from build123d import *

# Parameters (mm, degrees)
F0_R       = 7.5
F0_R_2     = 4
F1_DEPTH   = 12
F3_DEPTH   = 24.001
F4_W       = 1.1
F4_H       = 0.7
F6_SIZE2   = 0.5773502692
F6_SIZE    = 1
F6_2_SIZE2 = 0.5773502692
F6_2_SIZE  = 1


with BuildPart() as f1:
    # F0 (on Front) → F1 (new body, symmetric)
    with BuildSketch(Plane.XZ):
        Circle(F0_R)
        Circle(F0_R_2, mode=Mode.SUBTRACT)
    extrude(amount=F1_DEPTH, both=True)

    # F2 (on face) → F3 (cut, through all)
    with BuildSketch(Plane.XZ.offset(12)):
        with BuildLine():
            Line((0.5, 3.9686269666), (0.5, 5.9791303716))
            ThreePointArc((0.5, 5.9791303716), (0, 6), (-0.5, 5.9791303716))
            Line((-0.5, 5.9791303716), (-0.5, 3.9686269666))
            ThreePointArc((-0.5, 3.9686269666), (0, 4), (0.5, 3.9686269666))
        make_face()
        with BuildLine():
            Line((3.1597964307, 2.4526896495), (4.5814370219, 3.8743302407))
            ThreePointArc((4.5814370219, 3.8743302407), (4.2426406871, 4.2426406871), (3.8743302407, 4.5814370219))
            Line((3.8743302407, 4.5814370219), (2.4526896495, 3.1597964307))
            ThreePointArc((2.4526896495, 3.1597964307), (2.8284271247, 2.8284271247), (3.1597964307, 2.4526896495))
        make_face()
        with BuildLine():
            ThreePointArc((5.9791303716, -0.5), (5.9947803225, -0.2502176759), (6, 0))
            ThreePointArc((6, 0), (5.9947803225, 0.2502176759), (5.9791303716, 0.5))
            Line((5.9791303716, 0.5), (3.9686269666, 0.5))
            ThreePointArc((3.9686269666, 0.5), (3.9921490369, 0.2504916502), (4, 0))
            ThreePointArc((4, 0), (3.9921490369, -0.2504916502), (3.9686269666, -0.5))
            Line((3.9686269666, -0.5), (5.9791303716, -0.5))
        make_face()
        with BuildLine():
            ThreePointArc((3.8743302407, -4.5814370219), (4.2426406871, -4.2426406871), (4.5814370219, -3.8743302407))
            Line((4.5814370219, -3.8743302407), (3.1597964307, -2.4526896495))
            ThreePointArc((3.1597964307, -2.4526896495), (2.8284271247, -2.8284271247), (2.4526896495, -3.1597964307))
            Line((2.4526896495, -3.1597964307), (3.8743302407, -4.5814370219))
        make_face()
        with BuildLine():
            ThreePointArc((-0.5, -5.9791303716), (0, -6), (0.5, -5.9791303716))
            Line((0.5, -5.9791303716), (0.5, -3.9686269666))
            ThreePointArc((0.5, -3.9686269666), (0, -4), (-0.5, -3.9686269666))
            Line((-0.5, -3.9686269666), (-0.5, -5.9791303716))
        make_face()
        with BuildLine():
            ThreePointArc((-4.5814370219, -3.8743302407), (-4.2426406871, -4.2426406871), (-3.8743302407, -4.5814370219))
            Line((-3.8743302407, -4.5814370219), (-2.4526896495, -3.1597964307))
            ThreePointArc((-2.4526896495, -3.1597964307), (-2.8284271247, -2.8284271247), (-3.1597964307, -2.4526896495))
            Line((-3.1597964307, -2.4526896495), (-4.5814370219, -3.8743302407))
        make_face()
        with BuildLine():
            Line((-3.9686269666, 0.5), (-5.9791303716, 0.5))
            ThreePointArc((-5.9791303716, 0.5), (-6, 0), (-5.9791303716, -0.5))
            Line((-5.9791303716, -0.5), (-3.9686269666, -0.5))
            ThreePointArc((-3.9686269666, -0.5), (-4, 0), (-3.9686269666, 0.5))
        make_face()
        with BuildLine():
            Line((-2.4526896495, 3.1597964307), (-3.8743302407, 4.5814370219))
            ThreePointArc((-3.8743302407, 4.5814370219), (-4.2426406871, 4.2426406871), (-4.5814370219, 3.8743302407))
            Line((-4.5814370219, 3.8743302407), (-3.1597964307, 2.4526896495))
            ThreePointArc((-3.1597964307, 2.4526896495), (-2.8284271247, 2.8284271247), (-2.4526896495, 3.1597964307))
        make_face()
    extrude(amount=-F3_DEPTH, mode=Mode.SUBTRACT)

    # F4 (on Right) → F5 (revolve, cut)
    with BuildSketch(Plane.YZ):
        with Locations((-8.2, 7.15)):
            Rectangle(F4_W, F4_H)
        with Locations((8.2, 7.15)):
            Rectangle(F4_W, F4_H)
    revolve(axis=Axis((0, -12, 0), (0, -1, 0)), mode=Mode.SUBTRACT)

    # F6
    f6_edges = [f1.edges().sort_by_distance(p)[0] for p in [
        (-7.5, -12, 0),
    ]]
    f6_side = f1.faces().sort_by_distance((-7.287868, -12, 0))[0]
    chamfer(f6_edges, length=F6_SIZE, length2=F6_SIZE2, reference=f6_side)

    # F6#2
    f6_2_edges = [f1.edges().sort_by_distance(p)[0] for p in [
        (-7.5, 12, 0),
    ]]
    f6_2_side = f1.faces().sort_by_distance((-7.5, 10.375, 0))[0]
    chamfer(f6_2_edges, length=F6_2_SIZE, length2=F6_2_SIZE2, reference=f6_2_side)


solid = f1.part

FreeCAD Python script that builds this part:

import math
import FreeCAD as App
import Part
import Sketcher

V = App.Vector
Q = App.Units.Quantity


def edges_at(feature, points):
    """Names of the edges that pass closest to the given points."""
    edges = feature.Shape.Edges
    near = lambda p: min(range(len(edges)), key=lambda i: edges[i].distToShape(Part.Vertex(*p))[0])
    return sorted({f"Edge{near(p) + 1}" for p in points})


def add_polygon(sketch, points):
    """Adds a closed chain of lines whose ends are joined by coincident constraints."""
    first, n = sketch.GeometryCount, len(points)
    for a, b in zip(points, points[1:] + points[:1]):
        sketch.addGeometry(Part.LineSegment(App.Vector(*a, 0), App.Vector(*b, 0)), False)
    for i in range(n):
        sketch.addConstraint(Sketcher.Constraint("Coincident", first + i, 2, first + (i + 1) % n, 1))

doc = App.newDocument("Part")
body = doc.addObject("PartDesign::Body", "Body")

# Sketch on XZ plane
sketch1 = doc.addObject("Sketcher::SketchObject", "Sketch")
body.addObject(sketch1)
sketch1.AttachmentSupport = (doc.XZ_Plane, [""])
sketch1.MapMode = "FlatFace"
sketch1.addGeometry(Part.Circle(V(0, 0, 0), V(0, 0, 1), 7.5), False)
sketch1.addGeometry(Part.Circle(V(0, 0, 0), V(0, 0, 1), 4), False)
sketch1.addConstraint(Sketcher.Constraint("Coincident", 0, 3, -1, 1))
sketch1.addConstraint(Sketcher.Constraint("Coincident", 1, 3, -1, 1))
sketch1.addConstraint(Sketcher.Constraint("Diameter", 0, Q("15 mm")))
sketch1.addConstraint(Sketcher.Constraint("Diameter", 1, Q("8 mm")))
pad1 = doc.addObject("PartDesign::Pad", "Pad")
body.addObject(pad1)
pad1.Profile = sketch1
pad1.Length = 24
pad1.Midplane = True

# Sketch on XZ plane
sketch2 = doc.addObject("Sketcher::SketchObject", "Sketch001")
body.addObject(sketch2)
sketch2.AttachmentSupport = (doc.XZ_Plane, [""])
sketch2.MapMode = "FlatFace"
sketch2.AttachmentOffset = App.Placement(V(0, 0, 12), App.Rotation())
sketch2.addGeometry(Part.LineSegment(V(0.5, 4, 0), V(0.5, 6, 0)), False)
sketch2.addGeometry(Part.ArcOfCircle(Part.Circle(V(0, 0, 0), V(0, 0, 1), 6), math.radians(85.22), math.radians(94.78)), False)
sketch2.addGeometry(Part.LineSegment(V(-0.5, 6, 0), V(-0.5, 4, 0)), False)
sketch2.addGeometry(Part.ArcOfCircle(Part.Circle(V(0, 0, 0), V(0, 0, 1), 4), math.radians(82.82), math.radians(97.18)), False)
sketch2.addGeometry(Part.LineSegment(V(3.2, 2.5, 0), V(4.6, 3.9, 0)), False)
sketch2.addGeometry(Part.ArcOfCircle(Part.Circle(V(0, 0, 0), V(0, 0, 1), 6), math.radians(40.22), math.radians(49.78)), False)
sketch2.addGeometry(Part.LineSegment(V(3.9, 4.6, 0), V(2.5, 3.2, 0)), False)
sketch2.addGeometry(Part.ArcOfCircle(Part.Circle(V(0, 0, 0), V(0, 0, 1), 4), math.radians(37.82), math.radians(52.18)), False)
sketch2.addGeometry(Part.ArcOfCircle(Part.Circle(V(0, 0, 0), V(0, 0, 1), 6), math.radians(-4.78), math.radians(0)), False)
sketch2.addGeometry(Part.ArcOfCircle(Part.Circle(V(0, 0, 0), V(0, 0, 1), 6), math.radians(0), math.radians(4.78)), False)
sketch2.addGeometry(Part.LineSegment(V(6, 0.5, 0), V(4, 0.5, 0)), False)
sketch2.addGeometry(Part.ArcOfCircle(Part.Circle(V(0, 0, 0), V(0, 0, 1), 4), math.radians(0), math.radians(7.18)), False)
sketch2.addGeometry(Part.ArcOfCircle(Part.Circle(V(0, 0, 0), V(0, 0, 1), 4), math.radians(-7.18), math.radians(0)), False)
sketch2.addGeometry(Part.LineSegment(V(4, -0.5, 0), V(6, -0.5, 0)), False)
sketch2.addGeometry(Part.ArcOfCircle(Part.Circle(V(0, 0, 0), V(0, 0, 1), 6), math.radians(-49.78), math.radians(-40.22)), False)
sketch2.addGeometry(Part.LineSegment(V(4.6, -3.9, 0), V(3.2, -2.5, 0)), False)
sketch2.addGeometry(Part.ArcOfCircle(Part.Circle(V(0, 0, 0), V(0, 0, 1), 4), math.radians(-52.18), math.radians(-37.82)), False)
sketch2.addGeometry(Part.LineSegment(V(2.5, -3.2, 0), V(3.9, -4.6, 0)), False)
sketch2.addGeometry(Part.ArcOfCircle(Part.Circle(V(0, 0, 0), V(0, 0, 1), 6), math.radians(-94.78), math.radians(-85.22)), False)
sketch2.addGeometry(Part.LineSegment(V(0.5, -6, 0), V(0.5, -4, 0)), False)
sketch2.addGeometry(Part.ArcOfCircle(Part.Circle(V(0, 0, 0), V(0, 0, 1), 4), math.radians(-97.18), math.radians(-82.82)), False)
sketch2.addGeometry(Part.LineSegment(V(-0.5, -4, 0), V(-0.5, -6, 0)), False)
sketch2.addGeometry(Part.ArcOfCircle(Part.Circle(V(0, 0, 0), V(0, 0, 1), 6), math.radians(-139.78), math.radians(-130.22)), False)
sketch2.addGeometry(Part.LineSegment(V(-3.9, -4.6, 0), V(-2.5, -3.2, 0)), False)
sketch2.addGeometry(Part.ArcOfCircle(Part.Circle(V(0, 0, 0), V(0, 0, 1), 4), math.radians(-142.18), math.radians(-127.82)), False)
sketch2.addGeometry(Part.LineSegment(V(-3.2, -2.5, 0), V(-4.6, -3.9, 0)), False)
sketch2.addGeometry(Part.LineSegment(V(-4, 0.5, 0), V(-6, 0.5, 0)), False)
sketch2.addGeometry(Part.ArcOfCircle(Part.Circle(V(0, 0, 0), V(0, 0, 1), 6), math.radians(175.22), math.radians(184.78)), False)
sketch2.addGeometry(Part.LineSegment(V(-6, -0.5, 0), V(-4, -0.5, 0)), False)
sketch2.addGeometry(Part.ArcOfCircle(Part.Circle(V(0, 0, 0), V(0, 0, 1), 4), math.radians(172.82), math.radians(187.18)), False)
sketch2.addGeometry(Part.LineSegment(V(-2.5, 3.2, 0), V(-3.9, 4.6, 0)), False)
sketch2.addGeometry(Part.ArcOfCircle(Part.Circle(V(0, 0, 0), V(0, 0, 1), 6), math.radians(130.22), math.radians(139.78)), False)
sketch2.addGeometry(Part.LineSegment(V(-4.6, 3.9, 0), V(-3.2, 2.5, 0)), False)
sketch2.addGeometry(Part.ArcOfCircle(Part.Circle(V(0, 0, 0), V(0, 0, 1), 4), math.radians(127.82), math.radians(142.18)), False)
sketch2.addConstraint(Sketcher.Constraint("Coincident", 0, 2, 1, 1))
sketch2.addConstraint(Sketcher.Constraint("Coincident", 1, 2, 2, 1))
sketch2.addConstraint(Sketcher.Constraint("Coincident", 2, 2, 3, 2))
sketch2.addConstraint(Sketcher.Constraint("Coincident", 3, 1, 0, 1))
sketch2.addConstraint(Sketcher.Constraint("Coincident", 4, 2, 5, 1))
sketch2.addConstraint(Sketcher.Constraint("Coincident", 5, 2, 6, 1))
sketch2.addConstraint(Sketcher.Constraint("Coincident", 6, 2, 7, 2))
sketch2.addConstraint(Sketcher.Constraint("Coincident", 7, 1, 4, 1))
sketch2.addConstraint(Sketcher.Constraint("Tangent", 8, 2, 9, 1))
sketch2.addConstraint(Sketcher.Constraint("Coincident", 9, 2, 10, 1))
sketch2.addConstraint(Sketcher.Constraint("Coincident", 10, 2, 11, 2))
sketch2.addConstraint(Sketcher.Constraint("Tangent", 11, 1, 12, 2))
sketch2.addConstraint(Sketcher.Constraint("Coincident", 12, 1, 13, 1))
sketch2.addConstraint(Sketcher.Constraint("Coincident", 13, 2, 8, 1))
sketch2.addConstraint(Sketcher.Constraint("Coincident", 14, 2, 15, 1))
sketch2.addConstraint(Sketcher.Constraint("Coincident", 15, 2, 16, 2))
sketch2.addConstraint(Sketcher.Constraint("Coincident", 16, 1, 17, 1))
sketch2.addConstraint(Sketcher.Constraint("Coincident", 17, 2, 14, 1))
sketch2.addConstraint(Sketcher.Constraint("Coincident", 18, 2, 19, 1))
sketch2.addConstraint(Sketcher.Constraint("Coincident", 19, 2, 20, 2))
sketch2.addConstraint(Sketcher.Constraint("Coincident", 20, 1, 21, 1))
sketch2.addConstraint(Sketcher.Constraint("Coincident", 21, 2, 18, 1))
sketch2.addConstraint(Sketcher.Constraint("Coincident", 22, 2, 23, 1))
sketch2.addConstraint(Sketcher.Constraint("Coincident", 23, 2, 24, 2))
sketch2.addConstraint(Sketcher.Constraint("Coincident", 24, 1, 25, 1))
sketch2.addConstraint(Sketcher.Constraint("Coincident", 25, 2, 22, 1))
sketch2.addConstraint(Sketcher.Constraint("Coincident", 26, 2, 27, 1))
sketch2.addConstraint(Sketcher.Constraint("Coincident", 27, 2, 28, 1))
sketch2.addConstraint(Sketcher.Constraint("Coincident", 28, 2, 29, 2))
sketch2.addConstraint(Sketcher.Constraint("Coincident", 29, 1, 26, 1))
sketch2.addConstraint(Sketcher.Constraint("Coincident", 30, 2, 31, 1))
sketch2.addConstraint(Sketcher.Constraint("Coincident", 31, 2, 32, 1))
sketch2.addConstraint(Sketcher.Constraint("Coincident", 32, 2, 33, 2))
sketch2.addConstraint(Sketcher.Constraint("Coincident", 33, 1, 30, 1))
sketch2.addConstraint(Sketcher.Constraint("Vertical", 0))
sketch2.addConstraint(Sketcher.Constraint("Vertical", 2))
sketch2.addConstraint(Sketcher.Constraint("Horizontal", 10))
sketch2.addConstraint(Sketcher.Constraint("Horizontal", 13))
sketch2.addConstraint(Sketcher.Constraint("Vertical", 19))
sketch2.addConstraint(Sketcher.Constraint("Vertical", 21))
sketch2.addConstraint(Sketcher.Constraint("Horizontal", 26))
sketch2.addConstraint(Sketcher.Constraint("Horizontal", 28))
sketch2.addConstraint(Sketcher.Constraint("Coincident", 1, 3, -1, 1))
sketch2.addConstraint(Sketcher.Constraint("Coincident", 3, 3, -1, 1))
sketch2.addConstraint(Sketcher.Constraint("Coincident", 5, 3, -1, 1))
sketch2.addConstraint(Sketcher.Constraint("Coincident", 7, 3, -1, 1))
sketch2.addConstraint(Sketcher.Constraint("Coincident", 8, 3, -1, 1))
sketch2.addConstraint(Sketcher.Constraint("Coincident", 11, 3, -1, 1))
sketch2.addConstraint(Sketcher.Constraint("Coincident", 14, 3, -1, 1))
sketch2.addConstraint(Sketcher.Constraint("Coincident", 16, 3, -1, 1))
sketch2.addConstraint(Sketcher.Constraint("Coincident", 18, 3, -1, 1))
sketch2.addConstraint(Sketcher.Constraint("Coincident", 20, 3, -1, 1))
sketch2.addConstraint(Sketcher.Constraint("Coincident", 22, 3, -1, 1))
sketch2.addConstraint(Sketcher.Constraint("Coincident", 24, 3, -1, 1))
sketch2.addConstraint(Sketcher.Constraint("Coincident", 27, 3, -1, 1))
sketch2.addConstraint(Sketcher.Constraint("Coincident", 29, 3, -1, 1))
sketch2.addConstraint(Sketcher.Constraint("Coincident", 31, 3, -1, 1))
sketch2.addConstraint(Sketcher.Constraint("Coincident", 33, 3, -1, 1))
sketch2.addConstraint(Sketcher.Constraint("Equal", 1, 5))
sketch2.addConstraint(Sketcher.Constraint("Equal", 3, 7))
sketch2.addConstraint(Sketcher.Constraint("Equal", 5, 8))
sketch2.addConstraint(Sketcher.Constraint("Equal", 8, 9))
sketch2.addConstraint(Sketcher.Constraint("Equal", 7, 11))
sketch2.addConstraint(Sketcher.Constraint("Equal", 11, 12))
sketch2.addConstraint(Sketcher.Constraint("Equal", 9, 14))
sketch2.addConstraint(Sketcher.Constraint("Equal", 12, 16))
sketch2.addConstraint(Sketcher.Constraint("Equal", 14, 18))
sketch2.addConstraint(Sketcher.Constraint("Equal", 16, 20))
sketch2.addConstraint(Sketcher.Constraint("Equal", 18, 22))
sketch2.addConstraint(Sketcher.Constraint("Equal", 20, 24))
sketch2.addConstraint(Sketcher.Constraint("Equal", 22, 27))
sketch2.addConstraint(Sketcher.Constraint("Equal", 24, 29))
sketch2.addConstraint(Sketcher.Constraint("Equal", 27, 31))
sketch2.addConstraint(Sketcher.Constraint("Equal", 29, 33))
sketch2.addConstraint(Sketcher.Constraint("PointOnObject", 8, 2, -1))
sketch2.addConstraint(Sketcher.Constraint("PointOnObject", 11, 1, -1))
sketch2.addConstraint(Sketcher.Constraint("Parallel", 4, 6))
sketch2.addConstraint(Sketcher.Constraint("Perpendicular", 6, 15))
sketch2.addConstraint(Sketcher.Constraint("Parallel", 15, 17))
sketch2.addConstraint(Sketcher.Constraint("Perpendicular", 17, 23))
sketch2.addConstraint(Sketcher.Constraint("Parallel", 23, 25))
sketch2.addConstraint(Sketcher.Constraint("Perpendicular", 25, 30))
sketch2.addConstraint(Sketcher.Constraint("Parallel", 30, 32))
sketch2.addConstraint(Sketcher.Constraint("Horizontal", 0, 2, 1, 2))
sketch2.addConstraint(Sketcher.Constraint("Horizontal", 19, 2, 20, 1))
sketch2.addConstraint(Sketcher.Constraint("Horizontal", 17, 2, 22, 2))
sketch2.addConstraint(Sketcher.Constraint("Horizontal", 16, 1, 23, 2))
sketch2.addConstraint(Sketcher.Constraint("Horizontal", 15, 2, 24, 1))
sketch2.addConstraint(Sketcher.Constraint("Horizontal", 10, 2, 26, 2))
sketch2.addConstraint(Sketcher.Constraint("Horizontal", 13, 2, 27, 2))
sketch2.addConstraint(Sketcher.Constraint("Horizontal", 5, 2, 30, 2))
sketch2.addConstraint(Sketcher.Constraint("Horizontal", 4, 2, 31, 2))
sketch2.addConstraint(Sketcher.Constraint("Vertical", 10, 2, 12, 1))
sketch2.addConstraint(Sketcher.Constraint("Vertical", 4, 2, 14, 2))
sketch2.addConstraint(Sketcher.Constraint("Vertical", 6, 2, 16, 1))
sketch2.addConstraint(Sketcher.Constraint("Vertical", 3, 1, 18, 2))
sketch2.addConstraint(Sketcher.Constraint("Equal", 28, 0))
sketch2.addConstraint(Sketcher.Constraint("Equal", 4, 6))
sketch2.addConstraint(Sketcher.Constraint("Radius", 1, Q("6 mm")))
sketch2.addConstraint(Sketcher.Constraint("Radius", 3, Q("4 mm")))
sketch2.addConstraint(Sketcher.Constraint("DistanceX", 1, 2, 0, 2, Q("1 mm")))
sketch2.addConstraint(Sketcher.Constraint("DistanceY", 4, 2, 0, 2, Q("2.1048 mm")))
pocket1 = doc.addObject("PartDesign::Pocket", "Pocket")
body.addObject(pocket1)
pocket1.Profile = sketch2
pocket1.Type = "ThroughAll"

# Sketch on YZ plane
sketch3 = doc.addObject("Sketcher::SketchObject", "Sketch002")
body.addObject(sketch3)
sketch3.AttachmentSupport = (doc.YZ_Plane, [""])
sketch3.MapMode = "FlatFace"
add_polygon(sketch3, [(-8.8, 7.5), (-8.8, 6.8), (-7.7, 6.8), (-7.7, 7.5)])  # lines 0-3
add_polygon(sketch3, [(7.7, 7.5), (7.7, 6.8), (8.8, 6.8), (8.8, 7.5)])  # lines 4-7
sketch3.addConstraint(Sketcher.Constraint("Vertical", 0))
sketch3.addConstraint(Sketcher.Constraint("Horizontal", 1))
sketch3.addConstraint(Sketcher.Constraint("Vertical", 2))
sketch3.addConstraint(Sketcher.Constraint("Horizontal", 3))
sketch3.addConstraint(Sketcher.Constraint("Vertical", 4))
sketch3.addConstraint(Sketcher.Constraint("Horizontal", 5))
sketch3.addConstraint(Sketcher.Constraint("Vertical", 6))
sketch3.addConstraint(Sketcher.Constraint("Horizontal", 7))
sketch3.addConstraint(Sketcher.Constraint("Symmetric", 1, 2, 4, 2, -2))
sketch3.addConstraint(Sketcher.Constraint("Symmetric", 3, 2, 6, 2, -2))
sketch3.addConstraint(Sketcher.Constraint("DistanceX", 1, 1, 1, 2, Q("1.1 mm")))
sketch3.addConstraint(Sketcher.Constraint("DistanceY", 0, 2, 0, 1, Q("0.7 mm")))
sketch3.addConstraint(Sketcher.Constraint("DistanceY", -1, 1, 0, 2, Q("6.8 mm")))
sketch3.addConstraint(Sketcher.Constraint("DistanceX", 1, 2, 4, 2, Q("15.3 mm")))
groove = doc.addObject("PartDesign::Groove", "Groove")
body.addObject(groove)
groove.Profile = sketch3
groove.ReferenceAxis = (sketch3, ["H_Axis"])
groove.Angle = 360
doc.recompute()

chamfer = doc.addObject("PartDesign::Chamfer", "Chamfer")
body.addObject(chamfer)
chamfer.Base = (groove, edges_at(groove, [(-7.5, -12, 0)]))
chamfer.ChamferType = "Two distances"
chamfer.Size = 1
chamfer.Size2 = 0.57735
doc.recompute()

chamfer2 = doc.addObject("PartDesign::Chamfer", "Chamfer001")
body.addObject(chamfer2)
chamfer2.Base = (chamfer, edges_at(chamfer, [(-7.5, 12, 0)]))
chamfer2.ChamferType = "Two distances"
chamfer2.Size = 1
chamfer2.Size2 = 0.57735
chamfer2.FlipDirection = True

doc.recompute()
